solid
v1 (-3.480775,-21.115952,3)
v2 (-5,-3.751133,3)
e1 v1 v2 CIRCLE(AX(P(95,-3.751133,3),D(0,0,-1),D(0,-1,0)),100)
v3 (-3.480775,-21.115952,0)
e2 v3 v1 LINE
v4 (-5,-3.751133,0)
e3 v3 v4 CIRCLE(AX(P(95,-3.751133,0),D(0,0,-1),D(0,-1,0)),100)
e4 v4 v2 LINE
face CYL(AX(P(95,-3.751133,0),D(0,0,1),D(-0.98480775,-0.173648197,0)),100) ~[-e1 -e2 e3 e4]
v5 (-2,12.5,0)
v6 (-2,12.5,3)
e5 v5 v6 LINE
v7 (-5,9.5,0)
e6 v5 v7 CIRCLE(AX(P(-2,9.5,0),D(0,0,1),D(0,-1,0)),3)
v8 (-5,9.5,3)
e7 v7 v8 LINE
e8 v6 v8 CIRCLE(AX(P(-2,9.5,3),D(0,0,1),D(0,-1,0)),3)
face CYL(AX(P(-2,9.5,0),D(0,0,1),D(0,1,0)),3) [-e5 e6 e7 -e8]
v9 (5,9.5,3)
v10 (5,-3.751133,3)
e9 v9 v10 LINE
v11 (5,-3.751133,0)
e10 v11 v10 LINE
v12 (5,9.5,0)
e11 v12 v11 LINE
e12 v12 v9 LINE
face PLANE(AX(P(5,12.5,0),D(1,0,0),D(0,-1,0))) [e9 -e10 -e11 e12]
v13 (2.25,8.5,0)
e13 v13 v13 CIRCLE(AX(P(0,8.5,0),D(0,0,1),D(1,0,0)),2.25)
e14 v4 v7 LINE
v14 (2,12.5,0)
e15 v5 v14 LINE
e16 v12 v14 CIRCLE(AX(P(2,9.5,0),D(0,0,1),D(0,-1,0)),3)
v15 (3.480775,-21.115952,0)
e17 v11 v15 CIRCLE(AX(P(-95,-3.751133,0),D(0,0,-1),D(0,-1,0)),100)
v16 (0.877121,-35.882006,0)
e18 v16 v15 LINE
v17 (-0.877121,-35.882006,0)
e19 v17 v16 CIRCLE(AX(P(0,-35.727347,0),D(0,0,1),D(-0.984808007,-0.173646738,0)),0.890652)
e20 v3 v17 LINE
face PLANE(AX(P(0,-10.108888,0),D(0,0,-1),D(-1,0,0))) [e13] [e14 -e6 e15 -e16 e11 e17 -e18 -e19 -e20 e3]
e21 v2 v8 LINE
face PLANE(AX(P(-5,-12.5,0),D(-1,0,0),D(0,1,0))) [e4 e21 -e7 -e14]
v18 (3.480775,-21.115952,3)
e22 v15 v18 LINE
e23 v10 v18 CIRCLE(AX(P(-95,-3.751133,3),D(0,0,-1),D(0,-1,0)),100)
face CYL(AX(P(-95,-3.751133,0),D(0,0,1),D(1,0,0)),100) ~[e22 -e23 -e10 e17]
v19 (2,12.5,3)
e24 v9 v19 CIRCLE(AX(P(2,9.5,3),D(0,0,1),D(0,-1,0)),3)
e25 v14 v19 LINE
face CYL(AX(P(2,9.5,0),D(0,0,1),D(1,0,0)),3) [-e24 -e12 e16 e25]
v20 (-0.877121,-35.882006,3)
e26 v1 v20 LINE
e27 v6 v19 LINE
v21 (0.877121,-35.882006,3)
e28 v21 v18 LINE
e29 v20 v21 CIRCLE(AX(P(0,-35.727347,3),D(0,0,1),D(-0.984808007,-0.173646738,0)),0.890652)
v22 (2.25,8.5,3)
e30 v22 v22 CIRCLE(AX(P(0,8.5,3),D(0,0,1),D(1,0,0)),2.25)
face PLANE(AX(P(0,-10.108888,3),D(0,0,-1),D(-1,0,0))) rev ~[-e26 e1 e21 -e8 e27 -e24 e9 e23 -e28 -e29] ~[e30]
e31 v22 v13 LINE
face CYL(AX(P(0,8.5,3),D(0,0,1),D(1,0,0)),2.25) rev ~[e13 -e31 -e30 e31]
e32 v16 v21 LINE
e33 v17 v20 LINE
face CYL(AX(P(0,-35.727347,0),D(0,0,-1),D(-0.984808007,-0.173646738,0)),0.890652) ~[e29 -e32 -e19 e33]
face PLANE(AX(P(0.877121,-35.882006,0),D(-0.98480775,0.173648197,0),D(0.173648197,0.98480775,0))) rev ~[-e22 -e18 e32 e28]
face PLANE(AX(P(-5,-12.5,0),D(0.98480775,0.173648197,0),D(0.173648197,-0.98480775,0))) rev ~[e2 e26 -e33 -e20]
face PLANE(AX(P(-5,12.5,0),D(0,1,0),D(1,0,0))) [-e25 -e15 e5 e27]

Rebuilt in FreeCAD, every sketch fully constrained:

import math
import FreeCAD as App
import Part
import Sketcher
Q = App.Units.Quantity


def edges_at(feature, points):
    """Names of the edges that pass closest to the given points."""
    edges = feature.Shape.Edges
    near = lambda p: min(range(len(edges)), key=lambda i: edges[i].distToShape(Part.Vertex(*p))[0])
    return sorted({f"Edge{near(p) + 1}" for p in points})

doc = App.newDocument("Part")
body = doc.addObject("PartDesign::Body", "Body")

sketch1 = body.newObject("Sketcher::SketchObject", "Sketch")
sketch1.AttachmentSupport = (doc.getObject("XY_Plane"), [""])
sketch1.MapMode = "FlatFace"
sketch1.addGeometry(Part.LineSegment(App.Vector(5, 12.5, 0), App.Vector(-5, 12.5, 0)), False)
sketch1.addGeometry(Part.LineSegment(App.Vector(-5, 12.5, 0), App.Vector(-5, -12.5, 0)), False)
sketch1.addGeometry(Part.LineSegment(App.Vector(-5, -12.5, 0), App.Vector(-0.9, -35.9, 0)), False)
sketch1.addGeometry(Part.ArcOfCircle(Part.Circle(App.Vector(0, -35.7, 0), App.Vector(0, 0, 1), 0.9), math.radians(-170), math.radians(-10)), False)
sketch1.addGeometry(Part.LineSegment(App.Vector(0.9, -35.9, 0), App.Vector(5, -12.5, 0)), False)
sketch1.addGeometry(Part.LineSegment(App.Vector(5, -12.5, 0), App.Vector(5, 12.5, 0)), False)
sketch1.addConstraint(Sketcher.Constraint("Coincident", 0, 2, 1, 1))
sketch1.addConstraint(Sketcher.Constraint("Coincident", 1, 2, 2, 1))
sketch1.addConstraint(Sketcher.Constraint("Tangent", 2, 2, 3, 1))
sketch1.addConstraint(Sketcher.Constraint("Tangent", 3, 2, 4, 1))
sketch1.addConstraint(Sketcher.Constraint("Coincident", 4, 2, 5, 1))
sketch1.addConstraint(Sketcher.Constraint("Coincident", 5, 2, 0, 1))
sketch1.addConstraint(Sketcher.Constraint("Horizontal", 0))
sketch1.addConstraint(Sketcher.Constraint("Vertical", 1))
sketch1.addConstraint(Sketcher.Constraint("Vertical", 5))
sketch1.addConstraint(Sketcher.Constraint("Symmetric", 0, 2, 4, 2, -1, 1))
sketch1.addConstraint(Sketcher.Constraint("Symmetric", 2, 2, 3, 2, -2))
sketch1.addConstraint(Sketcher.Constraint("DistanceX", 0, 2, 0, 1, Q("10 mm")))
sketch1.addConstraint(Sketcher.Constraint("DistanceY", 1, 2, 1, 1, Q("25 mm")))
sketch1.addConstraint(Sketcher.Constraint("Angle", 2, Q("-79.999999 deg")))
sketch1.addConstraint(Sketcher.Constraint("Radius", 3, Q("0.890652 mm")))
pad1 = body.newObject("PartDesign::Pad", "Pad")
pad1.Profile = sketch1
pad1.Length = 3
doc.recompute()

fillet = body.newObject("PartDesign::Fillet", "Fillet")
fillet.Base = (pad1, edges_at(pad1, [(5, -12.5, 1.5), (-5, -12.5, 1.5)]))
fillet.Radius = 100
doc.recompute()

fillet2 = body.newObject("PartDesign::Fillet", "Fillet001")
fillet2.Base = (fillet, edges_at(fillet, [(5, 12.5, 1.5), (-5, 12.5, 1.5)]))
fillet2.Radius = 3

sketch2 = body.newObject("Sketcher::SketchObject", "Sketch001")
sketch2.AttachmentSupport = (doc.getObject("XY_Plane"), [""])
sketch2.MapMode = "FlatFace"
sketch2.AttachmentOffset = App.Placement(App.Vector(0, 0, 3), App.Rotation())
sketch2.addGeometry(Part.Circle(App.Vector(0, 8.5, 0), App.Vector(0, 0, 1), 2.2), False)
sketch2.addConstraint(Sketcher.Constraint("PointOnObject", 0, 3, -2))
sketch2.addConstraint(Sketcher.Constraint("Diameter", 0, Q("4.5 mm")))
sketch2.addConstraint(Sketcher.Constraint("DistanceY", -1, 1, 0, 3, Q("8.5 mm")))
pocket1 = body.newObject("PartDesign::Pocket", "Pocket")
pocket1.Profile = sketch2
pocket1.Length = 5

doc.recompute()
